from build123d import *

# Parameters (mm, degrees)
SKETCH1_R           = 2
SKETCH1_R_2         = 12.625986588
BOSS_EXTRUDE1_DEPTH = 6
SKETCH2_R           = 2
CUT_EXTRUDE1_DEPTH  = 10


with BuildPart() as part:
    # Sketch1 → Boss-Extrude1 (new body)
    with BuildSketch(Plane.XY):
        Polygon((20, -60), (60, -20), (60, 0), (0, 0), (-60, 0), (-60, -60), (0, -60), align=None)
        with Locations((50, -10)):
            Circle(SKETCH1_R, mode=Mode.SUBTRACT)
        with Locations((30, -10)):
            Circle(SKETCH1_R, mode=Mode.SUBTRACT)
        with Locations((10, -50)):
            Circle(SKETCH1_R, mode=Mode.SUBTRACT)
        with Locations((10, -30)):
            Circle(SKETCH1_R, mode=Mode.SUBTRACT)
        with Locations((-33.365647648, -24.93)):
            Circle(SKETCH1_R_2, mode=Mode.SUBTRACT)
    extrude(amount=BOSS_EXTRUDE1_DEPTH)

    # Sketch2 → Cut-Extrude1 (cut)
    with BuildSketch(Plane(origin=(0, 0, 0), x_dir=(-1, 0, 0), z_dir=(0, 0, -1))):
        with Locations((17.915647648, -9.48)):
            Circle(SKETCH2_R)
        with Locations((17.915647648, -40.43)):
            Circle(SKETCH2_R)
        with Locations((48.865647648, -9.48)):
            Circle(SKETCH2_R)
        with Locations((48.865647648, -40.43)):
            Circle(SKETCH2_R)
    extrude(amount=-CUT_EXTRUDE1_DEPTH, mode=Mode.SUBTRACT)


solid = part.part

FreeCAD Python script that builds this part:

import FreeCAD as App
import Part
import Sketcher
Q = App.Units.Quantity


def add_polygon(sketch, points):
    """Adds a closed chain of lines whose ends are joined by coincident constraints."""
    first, n = sketch.GeometryCount, len(points)
    for a, b in zip(points, points[1:] + points[:1]):
        sketch.addGeometry(Part.LineSegment(App.Vector(*a, 0), App.Vector(*b, 0)), False)
    for i in range(n):
        sketch.addConstraint(Sketcher.Constraint("Coincident", first + i, 2, first + (i + 1) % n, 1))

doc = App.newDocument("Part")
body = doc.addObject("PartDesign::Body", "Body")

# Sketch on XY plane
sketch1 = body.newObject("Sketcher::SketchObject", "Sketch")
sketch1.AttachmentSupport = (doc.getObject("XY_Plane"), [""])
sketch1.MapMode = "FlatFace"
add_polygon(sketch1, [(20, -60), (60, -20), (60, 0), (-60, 0), (-60, -60)])  # lines 0-4
sketch1.addGeometry(Part.Circle(App.Vector(10, -50, 0), App.Vector(0, 0, 1), 2), False)  # 5
sketch1.addGeometry(Part.Circle(App.Vector(-33.4, -24.9, 0), App.Vector(0, 0, 1), 12.6), False)  # 6
sketch1.addGeometry(Part.Circle(App.Vector(10, -30, 0), App.Vector(0, 0, 1), 2), False)  # 7
sketch1.addGeometry(Part.Circle(App.Vector(30, -10, 0), App.Vector(0, 0, 1), 2), False)  # 8
sketch1.addGeometry(Part.Circle(App.Vector(50, -10, 0), App.Vector(0, 0, 1), 2), False)  # 9
sketch1.addConstraint(Sketcher.Constraint("Vertical", 1))
sketch1.addConstraint(Sketcher.Constraint("Horizontal", 2))
sketch1.addConstraint(Sketcher.Constraint("Vertical", 3))
sketch1.addConstraint(Sketcher.Constraint("Horizontal", 4))
sketch1.addConstraint(Sketcher.Constraint("Equal", 5, 7))
sketch1.addConstraint(Sketcher.Constraint("Equal", 7, 8))
sketch1.addConstraint(Sketcher.Constraint("Equal", 8, 9))
sketch1.addConstraint(Sketcher.Constraint("Symmetric", 1, 2, 2, 2, -1, 1))
sketch1.addConstraint(Sketcher.Constraint("Horizontal", 8, 3, 9, 3))
sketch1.addConstraint(Sketcher.Constraint("Vertical", 5, 3, 7, 3))
sketch1.addConstraint(Sketcher.Constraint("Diameter", 5, Q("4 mm")))
sketch1.addConstraint(Sketcher.Constraint("DistanceX", 2, 2, 2, 1, Q("120 mm")))
sketch1.addConstraint(Sketcher.Constraint("DistanceX", 4, 1, 4, 2, Q("80 mm")))
sketch1.addConstraint(Sketcher.Constraint("DistanceY", 1, 1, 1, 2, Q("20 mm")))
sketch1.addConstraint(Sketcher.Constraint("DistanceY", 3, 2, 3, 1, Q("60 mm")))
sketch1.addConstraint(Sketcher.Constraint("DistanceX", -1, 1, 5, 3, Q("10 mm")))
sketch1.addConstraint(Sketcher.Constraint("DistanceY", 5, 3, -1, 1, Q("50 mm")))
sketch1.addConstraint(Sketcher.Constraint("DistanceY", 7, 3, -1, 1, Q("30 mm")))
sketch1.addConstraint(Sketcher.Constraint("DistanceX", -1, 1, 8, 3, Q("30 mm")))
sketch1.addConstraint(Sketcher.Constraint("DistanceY", 8, 3, -1, 1, Q("10 mm")))
sketch1.addConstraint(Sketcher.Constraint("DistanceX", -1, 1, 9, 3, Q("50 mm")))
sketch1.addConstraint(Sketcher.Constraint("DistanceY", 6, 3, -1, 1, Q("24.93 mm")))
sketch1.addConstraint(Sketcher.Constraint("Diameter", 6, Q("25.251973 mm")))
sketch1.addConstraint(Sketcher.Constraint("DistanceX", 6, 3, -1, 1, Q("33.365648 mm")))
pad1 = body.newObject("PartDesign::Pad", "Pad")
pad1.Profile = sketch1
pad1.Length = 6

# Sketch on XY plane
sketch2 = body.newObject("Sketcher::SketchObject", "Sketch001")
sketch2.AttachmentSupport = (doc.getObject("XY_Plane"), [""])
sketch2.MapMode = "FlatFace"
sketch2.addGeometry(Part.Circle(App.Vector(-17.9, -9.5, 0), App.Vector(0, 0, 1), 2), False)
sketch2.addGeometry(Part.Circle(App.Vector(-17.9, -40.4, 0), App.Vector(0, 0, 1), 2), False)
sketch2.addGeometry(Part.Circle(App.Vector(-48.9, -9.5, 0), App.Vector(0, 0, 1), 2), False)
sketch2.addGeometry(Part.Circle(App.Vector(-48.9, -40.4, 0), App.Vector(0, 0, 1), 2), False)
sketch2.addConstraint(Sketcher.Constraint("Equal", 0, 1))
sketch2.addConstraint(Sketcher.Constraint("Equal", 1, 2))
sketch2.addConstraint(Sketcher.Constraint("Equal", 2, 3))
sketch2.addConstraint(Sketcher.Constraint("Horizontal", 0, 3, 2, 3))
sketch2.addConstraint(Sketcher.Constraint("Horizontal", 1, 3, 3, 3))
sketch2.addConstraint(Sketcher.Constraint("Vertical", 0, 3, 1, 3))
sketch2.addConstraint(Sketcher.Constraint("Vertical", 2, 3, 3, 3))
sketch2.addConstraint(Sketcher.Constraint("Diameter", 0, Q("4 mm")))
sketch2.addConstraint(Sketcher.Constraint("DistanceY", 0, 3, -1, 1, Q("9.48 mm")))
sketch2.addConstraint(Sketcher.Constraint("DistanceY", 1, 3, -1, 1, Q("40.43 mm")))
sketch2.addConstraint(Sketcher.Constraint("DistanceX", 2, 3, 0, 3, Q("30.95 mm")))
sketch2.addConstraint(Sketcher.Constraint("DistanceX", 0, 3, -1, 1, Q("17.915648 mm")))
pocket1 = body.newObject("PartDesign::Pocket", "Pocket")
pocket1.Profile = sketch2
pocket1.Length = 10
pocket1.Reversed = True

doc.recompute()
